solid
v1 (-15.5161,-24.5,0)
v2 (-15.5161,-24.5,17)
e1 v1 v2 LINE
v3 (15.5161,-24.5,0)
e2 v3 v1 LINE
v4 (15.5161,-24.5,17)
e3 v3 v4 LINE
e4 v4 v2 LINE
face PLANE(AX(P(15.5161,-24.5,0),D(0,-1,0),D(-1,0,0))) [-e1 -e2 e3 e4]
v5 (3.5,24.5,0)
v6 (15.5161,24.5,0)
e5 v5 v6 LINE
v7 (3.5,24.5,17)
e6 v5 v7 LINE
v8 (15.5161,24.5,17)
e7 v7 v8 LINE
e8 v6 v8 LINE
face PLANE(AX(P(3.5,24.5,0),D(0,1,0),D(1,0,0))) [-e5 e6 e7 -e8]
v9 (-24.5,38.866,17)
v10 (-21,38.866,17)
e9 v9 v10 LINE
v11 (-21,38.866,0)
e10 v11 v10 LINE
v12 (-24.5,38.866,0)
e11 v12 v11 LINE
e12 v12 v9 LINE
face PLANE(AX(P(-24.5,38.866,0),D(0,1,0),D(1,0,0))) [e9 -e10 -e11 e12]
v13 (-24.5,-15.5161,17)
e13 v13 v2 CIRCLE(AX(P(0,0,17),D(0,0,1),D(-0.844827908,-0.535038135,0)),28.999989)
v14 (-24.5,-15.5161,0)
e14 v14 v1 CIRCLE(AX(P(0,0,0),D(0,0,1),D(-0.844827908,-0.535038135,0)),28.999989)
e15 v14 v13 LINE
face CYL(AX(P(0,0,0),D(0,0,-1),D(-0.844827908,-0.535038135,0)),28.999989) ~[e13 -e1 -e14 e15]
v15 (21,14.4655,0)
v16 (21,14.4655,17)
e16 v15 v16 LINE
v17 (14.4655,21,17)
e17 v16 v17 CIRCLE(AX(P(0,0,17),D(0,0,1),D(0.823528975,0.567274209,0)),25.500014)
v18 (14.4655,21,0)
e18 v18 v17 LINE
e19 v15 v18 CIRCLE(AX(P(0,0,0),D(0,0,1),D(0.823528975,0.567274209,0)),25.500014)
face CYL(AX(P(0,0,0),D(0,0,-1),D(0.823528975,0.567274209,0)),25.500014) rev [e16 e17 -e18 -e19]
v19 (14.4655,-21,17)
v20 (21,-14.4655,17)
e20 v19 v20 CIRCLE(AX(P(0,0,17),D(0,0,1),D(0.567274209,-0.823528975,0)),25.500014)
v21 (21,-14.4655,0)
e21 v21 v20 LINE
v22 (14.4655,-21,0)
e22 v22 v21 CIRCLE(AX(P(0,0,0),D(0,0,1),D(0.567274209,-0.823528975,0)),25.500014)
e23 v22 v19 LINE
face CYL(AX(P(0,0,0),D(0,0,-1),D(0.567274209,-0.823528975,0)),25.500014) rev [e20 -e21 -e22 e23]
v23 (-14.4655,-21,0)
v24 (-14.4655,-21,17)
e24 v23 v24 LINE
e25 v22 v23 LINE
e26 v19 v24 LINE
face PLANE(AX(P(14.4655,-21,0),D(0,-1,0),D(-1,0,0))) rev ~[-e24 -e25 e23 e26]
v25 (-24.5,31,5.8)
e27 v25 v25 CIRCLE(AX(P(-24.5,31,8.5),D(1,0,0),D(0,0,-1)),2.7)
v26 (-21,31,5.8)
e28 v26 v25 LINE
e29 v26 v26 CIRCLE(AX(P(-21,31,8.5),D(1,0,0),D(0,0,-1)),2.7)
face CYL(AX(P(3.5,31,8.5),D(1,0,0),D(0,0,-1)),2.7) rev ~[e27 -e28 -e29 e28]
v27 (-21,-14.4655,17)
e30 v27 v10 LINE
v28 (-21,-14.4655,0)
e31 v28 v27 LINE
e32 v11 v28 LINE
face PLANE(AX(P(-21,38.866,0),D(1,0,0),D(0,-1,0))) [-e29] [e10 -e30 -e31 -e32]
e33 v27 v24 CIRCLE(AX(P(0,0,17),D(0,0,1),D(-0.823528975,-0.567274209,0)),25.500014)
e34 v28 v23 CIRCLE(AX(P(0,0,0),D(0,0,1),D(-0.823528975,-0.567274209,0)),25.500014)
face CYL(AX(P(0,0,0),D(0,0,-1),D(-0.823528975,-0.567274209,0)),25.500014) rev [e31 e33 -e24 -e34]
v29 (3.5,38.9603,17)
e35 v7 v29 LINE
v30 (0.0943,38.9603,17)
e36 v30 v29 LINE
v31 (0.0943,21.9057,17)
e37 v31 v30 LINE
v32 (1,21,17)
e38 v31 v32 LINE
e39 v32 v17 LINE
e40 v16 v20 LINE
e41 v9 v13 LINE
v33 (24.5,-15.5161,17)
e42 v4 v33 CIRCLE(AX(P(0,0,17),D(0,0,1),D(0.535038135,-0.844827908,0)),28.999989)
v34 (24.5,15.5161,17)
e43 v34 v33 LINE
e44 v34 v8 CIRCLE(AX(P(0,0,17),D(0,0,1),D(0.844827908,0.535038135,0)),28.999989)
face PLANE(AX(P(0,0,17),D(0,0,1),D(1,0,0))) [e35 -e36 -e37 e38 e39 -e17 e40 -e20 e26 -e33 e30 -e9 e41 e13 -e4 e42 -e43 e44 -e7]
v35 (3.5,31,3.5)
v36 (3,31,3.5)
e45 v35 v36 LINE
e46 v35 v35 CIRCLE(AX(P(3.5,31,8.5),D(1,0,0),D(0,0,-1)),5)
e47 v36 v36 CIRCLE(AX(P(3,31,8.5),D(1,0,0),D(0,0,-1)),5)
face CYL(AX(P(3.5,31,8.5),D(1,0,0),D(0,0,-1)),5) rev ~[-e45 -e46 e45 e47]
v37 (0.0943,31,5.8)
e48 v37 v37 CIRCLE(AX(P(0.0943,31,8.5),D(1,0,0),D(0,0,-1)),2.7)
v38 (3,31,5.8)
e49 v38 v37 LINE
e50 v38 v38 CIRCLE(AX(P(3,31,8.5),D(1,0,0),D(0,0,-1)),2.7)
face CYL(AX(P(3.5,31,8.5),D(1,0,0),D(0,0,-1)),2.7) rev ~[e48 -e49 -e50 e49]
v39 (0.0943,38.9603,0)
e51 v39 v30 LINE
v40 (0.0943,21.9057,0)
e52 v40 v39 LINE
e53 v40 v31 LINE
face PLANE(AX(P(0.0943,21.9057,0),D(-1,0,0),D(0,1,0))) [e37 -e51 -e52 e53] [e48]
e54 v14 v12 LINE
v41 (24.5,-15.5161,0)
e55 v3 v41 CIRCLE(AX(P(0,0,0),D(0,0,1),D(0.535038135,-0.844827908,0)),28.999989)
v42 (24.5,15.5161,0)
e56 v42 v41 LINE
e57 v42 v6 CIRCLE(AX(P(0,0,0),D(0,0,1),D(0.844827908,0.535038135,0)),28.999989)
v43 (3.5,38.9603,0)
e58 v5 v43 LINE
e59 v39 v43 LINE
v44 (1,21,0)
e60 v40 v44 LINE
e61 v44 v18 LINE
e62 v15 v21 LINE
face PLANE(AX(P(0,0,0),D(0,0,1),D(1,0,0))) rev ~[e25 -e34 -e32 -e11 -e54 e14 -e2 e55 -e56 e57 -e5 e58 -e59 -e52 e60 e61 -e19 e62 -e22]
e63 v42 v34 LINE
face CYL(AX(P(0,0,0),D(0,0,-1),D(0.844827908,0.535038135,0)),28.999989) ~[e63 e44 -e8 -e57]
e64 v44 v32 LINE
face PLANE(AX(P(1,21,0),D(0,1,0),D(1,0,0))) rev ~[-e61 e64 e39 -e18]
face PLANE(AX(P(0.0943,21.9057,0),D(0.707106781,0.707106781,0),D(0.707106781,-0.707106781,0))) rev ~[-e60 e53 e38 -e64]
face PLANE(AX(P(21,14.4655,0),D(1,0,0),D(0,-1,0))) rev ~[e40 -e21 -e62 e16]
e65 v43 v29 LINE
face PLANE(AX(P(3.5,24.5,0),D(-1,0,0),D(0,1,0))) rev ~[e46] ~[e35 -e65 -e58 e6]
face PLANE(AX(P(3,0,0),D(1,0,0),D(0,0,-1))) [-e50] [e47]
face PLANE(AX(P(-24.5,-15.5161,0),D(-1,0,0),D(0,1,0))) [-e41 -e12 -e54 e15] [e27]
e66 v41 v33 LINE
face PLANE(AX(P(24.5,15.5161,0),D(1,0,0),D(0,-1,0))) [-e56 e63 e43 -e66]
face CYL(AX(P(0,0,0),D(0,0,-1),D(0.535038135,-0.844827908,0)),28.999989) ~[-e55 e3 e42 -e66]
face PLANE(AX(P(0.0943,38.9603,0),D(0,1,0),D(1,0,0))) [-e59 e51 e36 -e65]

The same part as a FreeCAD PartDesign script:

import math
import FreeCAD as App
import Part
import Sketcher

V = App.Vector
Q = App.Units.Quantity

doc = App.newDocument("Part")
body = doc.addObject("PartDesign::Body", "Body")

# Sketch on XY plane
sketch1 = doc.addObject("Sketcher::SketchObject", "Sketch")
body.addObject(sketch1)
sketch1.AttachmentSupport = (doc.XY_Plane, [""])
sketch1.MapMode = "FlatFace"
sketch1.addGeometry([
    Part.ArcOfCircle(Part.Circle(V(0, 0, 0), V(0, 0, 1), 25.5), math.radians(-55), math.radians(-35)),  # 0
    Part.LineSegment(V(14.5, -21, 0), V(-14.5, -21, 0)),  # 1
    Part.ArcOfCircle(Part.Circle(V(0, 0, 0), V(0, 0, 1), 25.5), math.radians(-145), math.radians(-125)),  # 2
    Part.LineSegment(V(-21, -14.5, 0), V(-21, 38.9, 0)),  # 3
    Part.LineSegment(V(-21, 38.9, 0), V(-24.5, 38.9, 0)),  # 4
    Part.LineSegment(V(-24.5, 38.9, 0), V(-24.5, -15.5, 0)),  # 5
    Part.ArcOfCircle(Part.Circle(V(0, 0, 0), V(0, 0, 1), 29), math.radians(-148), math.radians(-122)),  # 6
    Part.LineSegment(V(-15.5, -24.5, 0), V(15.5, -24.5, 0)),  # 7
    Part.ArcOfCircle(Part.Circle(V(0, 0, 0), V(0, 0, 1), 29), math.radians(-58), math.radians(-32)),  # 8
    Part.LineSegment(V(24.5, -15.5, 0), V(24.5, 15.5, 0)),  # 9
    Part.ArcOfCircle(Part.Circle(V(0, 0, 0), V(0, 0, 1), 29), math.radians(32), math.radians(58)),  # 10
    Part.LineSegment(V(15.5, 24.5, 0), V(3.5, 24.5, 0)),  # 11
    Part.LineSegment(V(3.5, 24.5, 0), V(3.5, 39, 0)),  # 12
    Part.LineSegment(V(3.5, 39, 0), V(0.1, 39, 0)),  # 13
    Part.LineSegment(V(0.1, 39, 0), V(0.1, 21.9, 0)),  # 14
    Part.LineSegment(V(0.1, 21.9, 0), V(1, 21, 0)),  # 15
    Part.LineSegment(V(1, 21, 0), V(14.5, 21, 0)),  # 16
    Part.ArcOfCircle(Part.Circle(V(0, 0, 0), V(0, 0, 1), 25.5), math.radians(35), math.radians(55)),  # 17
    Part.LineSegment(V(21, 14.5, 0), V(21, -14.5, 0)),  # 18
], False)
sketch1.addConstraint([
    Sketcher.Constraint("Coincident", 0, 1, 1, 1),
    Sketcher.Constraint("Coincident", 1, 2, 2, 2),
    Sketcher.Constraint("Coincident", 2, 1, 3, 1),
    Sketcher.Constraint("Coincident", 3, 2, 4, 1),
    Sketcher.Constraint("Coincident", 4, 2, 5, 1),
    Sketcher.Constraint("Coincident", 5, 2, 6, 1),
    Sketcher.Constraint("Coincident", 6, 2, 7, 1),
    Sketcher.Constraint("Coincident", 7, 2, 8, 1),
    Sketcher.Constraint("Coincident", 8, 2, 9, 1),
    Sketcher.Constraint("Coincident", 9, 2, 10, 1),
    Sketcher.Constraint("Coincident", 10, 2, 11, 1),
    Sketcher.Constraint("Coincident", 11, 2, 12, 1),
    Sketcher.Constraint("Coincident", 12, 2, 13, 1),
    Sketcher.Constraint("Coincident", 13, 2, 14, 1),
    Sketcher.Constraint("Coincident", 14, 2, 15, 1),
    Sketcher.Constraint("Coincident", 15, 2, 16, 1),
    Sketcher.Constraint("Coincident", 16, 2, 17, 2),
    Sketcher.Constraint("Coincident", 17, 1, 18, 1),
    Sketcher.Constraint("Coincident", 18, 2, 0, 2),
    Sketcher.Constraint("Horizontal", 1),
    Sketcher.Constraint("Vertical", 3),
    Sketcher.Constraint("Horizontal", 4),
    Sketcher.Constraint("Vertical", 5),
    Sketcher.Constraint("Horizontal", 7),
    Sketcher.Constraint("Vertical", 9),
    Sketcher.Constraint("Horizontal", 11),
    Sketcher.Constraint("Vertical", 12),
    Sketcher.Constraint("Horizontal", 13),
    Sketcher.Constraint("Vertical", 14),
    Sketcher.Constraint("Horizontal", 16),
    Sketcher.Constraint("Vertical", 18),
    Sketcher.Constraint("Coincident", 0, 3, -1, 1),
    Sketcher.Constraint("Coincident", 2, 3, -1, 1),
    Sketcher.Constraint("Coincident", 6, 3, -1, 1),
    Sketcher.Constraint("Coincident", 8, 3, -1, 1),
    Sketcher.Constraint("Coincident", 10, 3, -1, 1),
    Sketcher.Constraint("Coincident", 17, 3, -1, 1),
    Sketcher.Constraint("Equal", 0, 2),
    Sketcher.Constraint("Equal", 6, 8),
    Sketcher.Constraint("Equal", 8, 10),
    Sketcher.Constraint("Equal", 2, 17),
    Sketcher.Constraint("Horizontal", 5, 2, 8, 2),
    Sketcher.Constraint("Horizontal", 2, 1, 18, 2),
    Sketcher.Constraint("Vertical", 7, 2, 10, 2),
    Sketcher.Constraint("Vertical", 0, 1, 16, 2),
    Sketcher.Constraint("Equal", 7, 9),
    Sketcher.Constraint("Equal", 1, 18),
    Sketcher.Constraint("Radius", 0, Q("25.5 mm")),
    Sketcher.Constraint("Radius", 6, Q("29 mm")),
    Sketcher.Constraint("DistanceX", 15, 2, 17, 1, Q("20 mm")),
    Sketcher.Constraint("Angle", 15, Q("-45 deg")),
    Sketcher.Constraint("DistanceX", 4, 2, 4, 1, Q("3.5 mm")),
    Sketcher.Constraint("DistanceY", 0, 1, -1, 1, Q("21 mm")),
    Sketcher.Constraint("DistanceX", 11, 2, 9, 2, Q("21 mm")),
    Sketcher.Constraint("DistanceY", 5, 2, 5, 1, Q("54.382 mm")),
    Sketcher.Constraint("DistanceX", 13, 2, 13, 1, Q("3.4057 mm")),
    Sketcher.Constraint("DistanceY", 12, 1, 12, 2, Q("14.4603 mm")),
])
pad1 = doc.addObject("PartDesign::Pad", "Pad")
body.addObject(pad1)
pad1.Profile = sketch1
pad1.Length = 17

# Sketch on YZ plane
sketch2 = doc.addObject("Sketcher::SketchObject", "Sketch001")
body.addObject(sketch2)
sketch2.AttachmentSupport = (doc.YZ_Plane, [""])
sketch2.MapMode = "FlatFace"
sketch2.AttachmentOffset = App.Placement(V(0, 0, 3.5), App.Rotation())
sketch2.addGeometry(Part.Circle(V(31, 8.5, 0), V(0, 0, 1), 2.7), False)
sketch2.addConstraint([
    Sketcher.Constraint("Diameter", 0, Q("5.4 mm")),
    Sketcher.Constraint("DistanceX", -1, 1, 0, 3, Q("31 mm")),
    Sketcher.Constraint("DistanceY", -1, 1, 0, 3, Q("8.5 mm")),
])
pocket1 = doc.addObject("PartDesign::Pocket", "Pocket")
body.addObject(pocket1)
pocket1.Profile = sketch2
pocket1.Length = 50

# Sketch on YZ plane
sketch3 = doc.addObject("Sketcher::SketchObject", "Sketch002")
body.addObject(sketch3)
sketch3.AttachmentSupport = (doc.YZ_Plane, [""])
sketch3.MapMode = "FlatFace"
sketch3.AttachmentOffset = App.Placement(V(0, 0, 3.5), App.Rotation())
sketch3.addGeometry([
    Part.Circle(V(31, 8.5, 0), V(0, 0, 1), 5),
    Part.Circle(V(31, 8.5, 0), V(0, 0, 1), 2.7),
], False)
sketch3.addConstraint([
    Sketcher.Constraint("Coincident", 1, 3, 0, 3),
    Sketcher.Constraint("Diameter", 0, Q("10 mm")),
    Sketcher.Constraint("Diameter", 1, Q("5.4 mm")),
    Sketcher.Constraint("DistanceX", -1, 1, 0, 3, Q("31 mm")),
    Sketcher.Constraint("DistanceY", -1, 1, 0, 3, Q("8.5 mm")),
])
pocket2 = doc.addObject("PartDesign::Pocket", "Pocket001")
body.addObject(pocket2)
pocket2.Profile = sketch3
pocket2.Length = 0.5

doc.recompute()
